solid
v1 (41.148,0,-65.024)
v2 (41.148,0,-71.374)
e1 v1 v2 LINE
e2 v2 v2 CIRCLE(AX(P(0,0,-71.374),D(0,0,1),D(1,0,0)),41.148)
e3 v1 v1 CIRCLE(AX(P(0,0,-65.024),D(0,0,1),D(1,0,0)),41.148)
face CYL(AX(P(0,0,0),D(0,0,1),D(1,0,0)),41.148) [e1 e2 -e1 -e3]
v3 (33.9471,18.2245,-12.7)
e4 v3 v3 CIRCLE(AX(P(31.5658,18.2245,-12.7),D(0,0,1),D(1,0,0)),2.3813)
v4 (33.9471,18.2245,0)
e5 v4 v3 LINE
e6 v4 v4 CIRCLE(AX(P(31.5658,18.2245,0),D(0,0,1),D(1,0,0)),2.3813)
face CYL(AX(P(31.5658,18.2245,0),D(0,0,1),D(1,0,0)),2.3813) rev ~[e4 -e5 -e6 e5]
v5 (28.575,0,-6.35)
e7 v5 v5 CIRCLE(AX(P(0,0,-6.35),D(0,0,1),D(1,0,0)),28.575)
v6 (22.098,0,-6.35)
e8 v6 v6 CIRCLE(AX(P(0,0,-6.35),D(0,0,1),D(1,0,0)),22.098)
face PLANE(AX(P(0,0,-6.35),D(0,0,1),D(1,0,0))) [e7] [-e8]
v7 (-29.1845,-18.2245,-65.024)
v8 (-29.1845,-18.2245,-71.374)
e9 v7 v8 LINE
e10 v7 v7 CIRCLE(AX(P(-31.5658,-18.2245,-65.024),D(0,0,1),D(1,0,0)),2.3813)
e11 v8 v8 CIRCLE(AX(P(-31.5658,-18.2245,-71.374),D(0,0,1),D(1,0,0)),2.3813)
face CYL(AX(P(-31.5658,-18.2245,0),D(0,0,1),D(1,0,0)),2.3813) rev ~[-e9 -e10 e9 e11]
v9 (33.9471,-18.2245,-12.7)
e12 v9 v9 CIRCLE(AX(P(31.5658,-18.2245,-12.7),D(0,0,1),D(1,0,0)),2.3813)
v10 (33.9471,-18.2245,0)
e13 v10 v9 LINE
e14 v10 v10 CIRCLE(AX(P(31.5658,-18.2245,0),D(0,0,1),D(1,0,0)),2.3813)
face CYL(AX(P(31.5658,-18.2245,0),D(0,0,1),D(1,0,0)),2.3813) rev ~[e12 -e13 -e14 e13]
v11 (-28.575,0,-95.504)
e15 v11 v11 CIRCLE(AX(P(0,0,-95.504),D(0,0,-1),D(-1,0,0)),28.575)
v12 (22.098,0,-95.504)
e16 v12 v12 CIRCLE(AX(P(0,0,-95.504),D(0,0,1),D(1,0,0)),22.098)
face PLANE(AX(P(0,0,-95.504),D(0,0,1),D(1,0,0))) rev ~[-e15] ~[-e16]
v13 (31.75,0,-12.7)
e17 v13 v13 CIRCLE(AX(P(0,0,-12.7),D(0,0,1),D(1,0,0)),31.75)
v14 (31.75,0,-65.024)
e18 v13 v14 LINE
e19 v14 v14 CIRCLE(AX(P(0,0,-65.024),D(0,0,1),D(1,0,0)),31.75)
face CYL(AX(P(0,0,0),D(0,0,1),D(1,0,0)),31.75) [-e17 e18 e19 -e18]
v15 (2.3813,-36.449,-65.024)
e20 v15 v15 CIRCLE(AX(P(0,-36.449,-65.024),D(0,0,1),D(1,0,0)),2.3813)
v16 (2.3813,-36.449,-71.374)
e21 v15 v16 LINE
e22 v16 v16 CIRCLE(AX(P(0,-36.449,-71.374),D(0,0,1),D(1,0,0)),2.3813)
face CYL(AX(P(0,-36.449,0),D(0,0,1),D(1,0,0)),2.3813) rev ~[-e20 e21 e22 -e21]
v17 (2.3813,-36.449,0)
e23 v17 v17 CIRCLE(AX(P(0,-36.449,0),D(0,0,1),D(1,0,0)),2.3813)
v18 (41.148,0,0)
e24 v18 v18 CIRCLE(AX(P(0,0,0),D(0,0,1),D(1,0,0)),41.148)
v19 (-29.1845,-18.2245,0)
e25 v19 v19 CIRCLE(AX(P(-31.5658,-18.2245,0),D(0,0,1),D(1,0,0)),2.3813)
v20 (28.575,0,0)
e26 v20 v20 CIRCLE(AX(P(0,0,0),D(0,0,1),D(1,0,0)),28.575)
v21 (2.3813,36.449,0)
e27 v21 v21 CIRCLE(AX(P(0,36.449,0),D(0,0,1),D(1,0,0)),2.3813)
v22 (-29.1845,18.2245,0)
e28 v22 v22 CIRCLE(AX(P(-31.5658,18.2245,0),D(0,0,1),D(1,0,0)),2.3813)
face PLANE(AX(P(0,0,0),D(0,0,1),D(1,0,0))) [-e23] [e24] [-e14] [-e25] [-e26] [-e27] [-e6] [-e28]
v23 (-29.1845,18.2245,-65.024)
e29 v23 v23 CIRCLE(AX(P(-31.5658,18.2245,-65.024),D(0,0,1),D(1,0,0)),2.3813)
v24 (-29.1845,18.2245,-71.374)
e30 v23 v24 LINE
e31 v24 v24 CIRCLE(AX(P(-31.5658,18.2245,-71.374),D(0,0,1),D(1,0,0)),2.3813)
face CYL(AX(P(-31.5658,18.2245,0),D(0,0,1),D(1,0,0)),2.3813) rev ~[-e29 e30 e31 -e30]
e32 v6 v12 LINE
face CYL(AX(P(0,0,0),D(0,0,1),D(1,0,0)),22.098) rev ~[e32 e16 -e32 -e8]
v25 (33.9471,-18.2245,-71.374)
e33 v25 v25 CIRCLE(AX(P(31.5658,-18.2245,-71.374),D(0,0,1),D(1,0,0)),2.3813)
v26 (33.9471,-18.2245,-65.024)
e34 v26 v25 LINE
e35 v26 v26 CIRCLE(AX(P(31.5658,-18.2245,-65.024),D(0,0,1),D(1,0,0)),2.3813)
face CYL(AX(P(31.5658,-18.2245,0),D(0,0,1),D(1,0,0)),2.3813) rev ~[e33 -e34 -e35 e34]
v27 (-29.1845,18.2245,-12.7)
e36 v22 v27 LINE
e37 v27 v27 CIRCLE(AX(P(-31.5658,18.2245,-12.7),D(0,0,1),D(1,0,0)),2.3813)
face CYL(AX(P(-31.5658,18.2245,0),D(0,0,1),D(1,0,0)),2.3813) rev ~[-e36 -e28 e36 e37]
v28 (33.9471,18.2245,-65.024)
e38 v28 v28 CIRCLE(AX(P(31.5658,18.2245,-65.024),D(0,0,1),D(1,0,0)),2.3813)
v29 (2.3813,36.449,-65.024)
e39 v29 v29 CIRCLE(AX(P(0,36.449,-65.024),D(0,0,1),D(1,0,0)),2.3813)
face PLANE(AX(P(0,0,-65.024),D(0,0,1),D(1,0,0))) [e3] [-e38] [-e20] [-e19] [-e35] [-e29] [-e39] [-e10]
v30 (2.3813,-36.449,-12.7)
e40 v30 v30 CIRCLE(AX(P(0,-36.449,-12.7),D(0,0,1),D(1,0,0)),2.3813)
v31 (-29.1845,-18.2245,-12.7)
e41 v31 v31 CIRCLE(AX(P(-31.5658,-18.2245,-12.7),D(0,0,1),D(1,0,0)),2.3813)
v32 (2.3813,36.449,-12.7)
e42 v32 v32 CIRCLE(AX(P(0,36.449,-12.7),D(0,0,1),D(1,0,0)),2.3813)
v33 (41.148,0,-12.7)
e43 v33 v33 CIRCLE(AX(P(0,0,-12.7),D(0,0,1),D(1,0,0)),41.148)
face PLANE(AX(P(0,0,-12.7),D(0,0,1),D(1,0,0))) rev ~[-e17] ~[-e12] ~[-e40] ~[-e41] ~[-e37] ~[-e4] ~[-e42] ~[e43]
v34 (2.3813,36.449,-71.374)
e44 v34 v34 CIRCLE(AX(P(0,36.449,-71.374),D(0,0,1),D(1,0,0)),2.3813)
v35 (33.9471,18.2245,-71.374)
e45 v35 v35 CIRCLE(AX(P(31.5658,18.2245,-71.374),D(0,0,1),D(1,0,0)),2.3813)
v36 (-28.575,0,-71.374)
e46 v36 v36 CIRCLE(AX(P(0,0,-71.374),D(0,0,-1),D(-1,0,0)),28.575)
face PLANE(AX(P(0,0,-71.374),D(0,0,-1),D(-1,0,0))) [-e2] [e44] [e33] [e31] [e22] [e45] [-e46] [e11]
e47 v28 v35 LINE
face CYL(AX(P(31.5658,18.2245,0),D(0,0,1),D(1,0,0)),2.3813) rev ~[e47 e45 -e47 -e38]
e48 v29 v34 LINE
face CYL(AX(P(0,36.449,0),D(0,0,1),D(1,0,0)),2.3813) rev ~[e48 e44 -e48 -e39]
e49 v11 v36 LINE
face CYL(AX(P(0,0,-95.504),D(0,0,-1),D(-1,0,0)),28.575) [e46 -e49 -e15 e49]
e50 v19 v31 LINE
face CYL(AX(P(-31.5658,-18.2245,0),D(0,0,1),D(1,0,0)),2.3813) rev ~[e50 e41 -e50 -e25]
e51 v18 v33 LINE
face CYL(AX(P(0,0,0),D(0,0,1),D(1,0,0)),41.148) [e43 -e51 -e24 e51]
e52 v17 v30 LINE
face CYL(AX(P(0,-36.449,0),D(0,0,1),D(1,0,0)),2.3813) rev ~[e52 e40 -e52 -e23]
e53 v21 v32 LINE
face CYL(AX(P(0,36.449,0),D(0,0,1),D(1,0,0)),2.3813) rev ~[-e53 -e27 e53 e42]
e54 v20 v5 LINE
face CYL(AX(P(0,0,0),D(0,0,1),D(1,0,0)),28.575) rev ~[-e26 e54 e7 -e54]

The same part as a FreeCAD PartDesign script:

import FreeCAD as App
import Part
import Sketcher

V = App.Vector
Q = App.Units.Quantity

doc = App.newDocument("Part")
params = doc.addObject("Spreadsheet::Sheet", "Params")
for row, (alias, value) in enumerate([
    ("sketch1_diameter", "3.24 in"),
    ("pad1_length", "3.76 in"),
    ("sketch2_diameter", "1.74 in"),
    ("pocket1_length", "3.76 in"),
    ("sketch3_diameter", "2.25 in"),
    ("sketch3_diameter2", "3.24 in"),
    ("pocket2_length", "0.95 in"),
    ("sketch4_diameter", "2.25 in"),
    ("sketch4_diameter2", "1.74 in"),
    ("pocket3_length", "0.25 in"),
    ("sketch5_diameter", "2.5 in"),
    ("sketch5_diameter2", "3.24 in"),
    ("pocket4_length", "2.56 in"),
    ("sketch6_diameter", "2.5 in"),
    ("sketch6_diameter2", "3.24 in"),
    ("pad2_length", "0.5 in"),
    ("sketch7_diameter", "0.1875 in"),
    ("pocket5_length", "6 in"),
], start=1):
    params.set(f"A{row}", alias)
    params.set(f"B{row}", "=" + value)
    params.setAlias(f"B{row}", alias)

body = doc.addObject("PartDesign::Body", "Body")

sketch1 = body.newObject("Sketcher::SketchObject", "Sketch")
sketch1.AttachmentSupport = (doc.getObject("XY_Plane"), [""])
sketch1.MapMode = "FlatFace"
sketch1.addGeometry(Part.Circle(V(0, 0, 0), V(0, 0, 1), 41), False)
sketch1.addConstraint([
    Sketcher.Constraint("Coincident", 0, 3, -1, 1),
    Sketcher.Constraint("Diameter", 0, Q("3.24 in")),
])
sketch1.setExpression("Constraints[1]", "Params.sketch1_diameter")
pad1 = body.newObject("PartDesign::Pad", "Pad")
pad1.Profile = sketch1
pad1.setExpression("Length", "Params.pad1_length")
pad1.Reversed = True

sketch2 = body.newObject("Sketcher::SketchObject", "Sketch001")
sketch2.AttachmentSupport = (doc.getObject("XY_Plane"), [""])
sketch2.MapMode = "FlatFace"
sketch2.addGeometry(Part.Circle(V(0, 0, 0), V(0, 0, 1), 22), False)
sketch2.addConstraint([
    Sketcher.Constraint("Coincident", 0, 3, -1, 1),
    Sketcher.Constraint("Diameter", 0, Q("1.74 in")),
])
sketch2.setExpression("Constraints[1]", "Params.sketch2_diameter")
pocket1 = body.newObject("PartDesign::Pocket", "Pocket")
pocket1.Profile = sketch2
pocket1.setExpression("Length", "Params.pocket1_length")

sketch3 = body.newObject("Sketcher::SketchObject", "Sketch002")
sketch3.AttachmentSupport = (doc.getObject("XY_Plane"), [""])
sketch3.MapMode = "FlatFace"
sketch3.AttachmentOffset = App.Placement(V(0, 0, -3.76 * 25.4), App.Rotation())
sketch3.addGeometry([
    Part.Circle(V(0, 0, 0), V(0, 0, 1), 41),
    Part.Circle(V(0, 0, 0), V(0, 0, 1), 29),
], False)
sketch3.addConstraint([
    Sketcher.Constraint("Coincident", 0, 3, -1, 1),
    Sketcher.Constraint("Coincident", 1, 3, -1, 1),
    Sketcher.Constraint("Diameter", 1, Q("2.25 in")),
    Sketcher.Constraint("Diameter", 0, Q("3.24 in")),
])
sketch3.setExpression("Constraints[2]", "Params.sketch3_diameter")
sketch3.setExpression("Constraints[3]", "Params.sketch3_diameter2")
pocket2 = body.newObject("PartDesign::Pocket", "Pocket001")
pocket2.Profile = sketch3
pocket2.setExpression("Length", "Params.pocket2_length")
pocket2.Reversed = True

sketch4 = body.newObject("Sketcher::SketchObject", "Sketch003")
sketch4.AttachmentSupport = (doc.getObject("XY_Plane"), [""])
sketch4.MapMode = "FlatFace"
sketch4.addGeometry([
    Part.Circle(V(0, 0, 0), V(0, 0, 1), 29),
    Part.Circle(V(0, 0, 0), V(0, 0, 1), 22),
], False)
sketch4.addConstraint([
    Sketcher.Constraint("Coincident", 0, 3, -1, 1),
    Sketcher.Constraint("Coincident", 1, 3, -1, 1),
    Sketcher.Constraint("Diameter", 0, Q("2.25 in")),
    Sketcher.Constraint("Diameter", 1, Q("1.74 in")),
])
sketch4.setExpression("Constraints[2]", "Params.sketch4_diameter")
sketch4.setExpression("Constraints[3]", "Params.sketch4_diameter2")
pocket3 = body.newObject("PartDesign::Pocket", "Pocket002")
pocket3.Profile = sketch4
pocket3.setExpression("Length", "Params.pocket3_length")

sketch5 = body.newObject("Sketcher::SketchObject", "Sketch004")
sketch5.AttachmentSupport = (doc.getObject("XY_Plane"), [""])
sketch5.MapMode = "FlatFace"
sketch5.addGeometry([
    Part.Circle(V(0, 0, 0), V(0, 0, 1), 41),
    Part.Circle(V(0, 0, 0), V(0, 0, 1), 32),
], False)
sketch5.addConstraint([
    Sketcher.Constraint("Coincident", 0, 3, -1, 1),
    Sketcher.Constraint("Coincident", 1, 3, -1, 1),
    Sketcher.Constraint("Diameter", 1, Q("2.5 in")),
    Sketcher.Constraint("Diameter", 0, Q("3.24 in")),
])
sketch5.setExpression("Constraints[2]", "Params.sketch5_diameter")
sketch5.setExpression("Constraints[3]", "Params.sketch5_diameter2")
pocket4 = body.newObject("PartDesign::Pocket", "Pocket003")
pocket4.Profile = sketch5
pocket4.setExpression("Length", "Params.pocket4_length")

sketch6 = body.newObject("Sketcher::SketchObject", "Sketch005")
sketch6.AttachmentSupport = (doc.getObject("XY_Plane"), [""])
sketch6.MapMode = "FlatFace"
sketch6.addGeometry([
    Part.Circle(V(0, 0, 0), V(0, 0, 1), 41),
    Part.Circle(V(0, 0, 0), V(0, 0, 1), 32),
], False)
sketch6.addConstraint([
    Sketcher.Constraint("Coincident", 0, 3, -1, 1),
    Sketcher.Constraint("Coincident", 1, 3, -1, 1),
    Sketcher.Constraint("Diameter", 1, Q("2.5 in")),
    Sketcher.Constraint("Diameter", 0, Q("3.24 in")),
])
sketch6.setExpression("Constraints[2]", "Params.sketch6_diameter")
sketch6.setExpression("Constraints[3]", "Params.sketch6_diameter2")
pad2 = body.newObject("PartDesign::Pad", "Pad001")
pad2.Profile = sketch6
pad2.setExpression("Length", "Params.pad2_length")
pad2.Reversed = True

sketch7 = body.newObject("Sketcher::SketchObject", "Sketch006")
sketch7.AttachmentSupport = (doc.getObject("XY_Plane"), [""])
sketch7.MapMode = "FlatFace"
sketch7.addGeometry([
    Part.Circle(V(0, 36.4, 0), V(0, 0, 1), 2.4),
    Part.Circle(V(-31.6, 18.2, 0), V(0, 0, 1), 2.4),
    Part.Circle(V(-31.6, -18.2, 0), V(0, 0, 1), 2.4),
    Part.Circle(V(0, -36.4, 0), V(0, 0, 1), 2.4),
    Part.Circle(V(31.6, -18.2, 0), V(0, 0, 1), 2.4),
    Part.Circle(V(31.6, 18.2, 0), V(0, 0, 1), 2.4),
], False)
sketch7.addConstraint([
    Sketcher.Constraint("Equal", 0, 1),
    Sketcher.Constraint("Equal", 1, 2),
    Sketcher.Constraint("Equal", 2, 3),
    Sketcher.Constraint("Equal", 3, 4),
    Sketcher.Constraint("Equal", 4, 5),
    Sketcher.Constraint("Symmetric", 0, 3, 3, 3, -1, 1),
    Sketcher.Constraint("Symmetric", 1, 3, 4, 3, -1, 1),
    Sketcher.Constraint("Symmetric", 2, 3, 5, 3, -1, 1),
    Sketcher.Constraint("Symmetric", 2, 3, 4, 3, -2),
    Sketcher.Constraint("PointOnObject", 0, 3, -2),
    Sketcher.Constraint("Diameter", 0, Q("0.1875 in")),
    Sketcher.Constraint("DistanceY", 3, 3, 0, 3, Q("2.87 in")),
    Sketcher.Constraint("DistanceY", 2, 3, 1, 3, Q("1.435 in")),
    Sketcher.Constraint("DistanceX", 2, 3, 4, 3, Q("2.4855 in")),
])
sketch7.setExpression("Constraints[10]", "Params.sketch7_diameter")
pocket5 = body.newObject("PartDesign::Pocket", "Pocket004")
pocket5.Profile = sketch7
pocket5.setExpression("Length", "Params.pocket5_length")

doc.recompute()
